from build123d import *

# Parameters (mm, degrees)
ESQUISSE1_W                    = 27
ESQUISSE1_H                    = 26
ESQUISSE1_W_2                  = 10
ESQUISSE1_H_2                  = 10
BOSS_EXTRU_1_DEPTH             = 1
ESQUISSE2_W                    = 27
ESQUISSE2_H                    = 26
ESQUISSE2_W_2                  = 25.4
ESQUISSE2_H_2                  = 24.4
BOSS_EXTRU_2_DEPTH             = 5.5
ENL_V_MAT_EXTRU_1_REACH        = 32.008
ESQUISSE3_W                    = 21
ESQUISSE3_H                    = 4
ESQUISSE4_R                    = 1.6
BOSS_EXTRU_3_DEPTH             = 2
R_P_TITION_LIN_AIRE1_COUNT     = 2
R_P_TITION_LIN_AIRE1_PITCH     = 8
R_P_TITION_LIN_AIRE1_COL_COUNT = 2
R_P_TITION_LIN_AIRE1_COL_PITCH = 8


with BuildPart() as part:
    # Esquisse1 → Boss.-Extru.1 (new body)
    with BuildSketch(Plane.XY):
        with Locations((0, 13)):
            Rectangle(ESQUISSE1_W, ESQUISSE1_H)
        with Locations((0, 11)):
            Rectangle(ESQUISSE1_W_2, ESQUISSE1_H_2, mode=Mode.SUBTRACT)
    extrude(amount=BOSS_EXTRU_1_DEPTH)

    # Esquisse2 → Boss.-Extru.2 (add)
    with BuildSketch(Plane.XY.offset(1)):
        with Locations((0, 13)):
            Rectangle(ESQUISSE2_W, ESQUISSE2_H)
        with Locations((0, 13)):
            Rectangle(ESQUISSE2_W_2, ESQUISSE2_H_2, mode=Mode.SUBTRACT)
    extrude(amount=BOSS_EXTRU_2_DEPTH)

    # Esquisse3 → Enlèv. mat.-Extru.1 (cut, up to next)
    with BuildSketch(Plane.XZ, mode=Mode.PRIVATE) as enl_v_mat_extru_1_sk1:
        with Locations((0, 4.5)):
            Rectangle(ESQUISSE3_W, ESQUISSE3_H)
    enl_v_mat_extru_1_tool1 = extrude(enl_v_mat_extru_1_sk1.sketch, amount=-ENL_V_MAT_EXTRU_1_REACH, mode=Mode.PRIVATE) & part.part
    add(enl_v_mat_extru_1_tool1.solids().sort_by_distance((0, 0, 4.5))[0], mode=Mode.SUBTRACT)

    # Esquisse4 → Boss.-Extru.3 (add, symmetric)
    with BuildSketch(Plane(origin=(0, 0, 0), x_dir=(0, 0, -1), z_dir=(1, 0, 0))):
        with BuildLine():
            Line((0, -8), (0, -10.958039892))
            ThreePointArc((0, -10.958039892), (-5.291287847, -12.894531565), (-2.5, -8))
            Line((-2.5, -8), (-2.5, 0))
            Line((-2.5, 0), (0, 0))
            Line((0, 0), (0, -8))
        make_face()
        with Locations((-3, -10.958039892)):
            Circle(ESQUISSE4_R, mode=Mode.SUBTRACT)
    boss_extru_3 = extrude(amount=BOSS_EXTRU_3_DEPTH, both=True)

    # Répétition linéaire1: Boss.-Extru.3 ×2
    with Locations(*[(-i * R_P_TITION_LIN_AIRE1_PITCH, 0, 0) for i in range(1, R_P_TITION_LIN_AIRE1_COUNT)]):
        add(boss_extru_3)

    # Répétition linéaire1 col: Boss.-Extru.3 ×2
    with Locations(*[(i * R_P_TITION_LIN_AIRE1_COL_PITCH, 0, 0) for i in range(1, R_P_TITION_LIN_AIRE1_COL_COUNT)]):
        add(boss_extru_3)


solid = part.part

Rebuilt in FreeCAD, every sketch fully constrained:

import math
import FreeCAD as App
import Part
import Sketcher
Q = App.Units.Quantity


def add_polygon(sketch, points):
    """Adds a closed chain of lines whose ends are joined by coincident constraints."""
    first, n = sketch.GeometryCount, len(points)
    for a, b in zip(points, points[1:] + points[:1]):
        sketch.addGeometry(Part.LineSegment(App.Vector(*a, 0), App.Vector(*b, 0)), False)
    for i in range(n):
        sketch.addConstraint(Sketcher.Constraint("Coincident", first + i, 2, first + (i + 1) % n, 1))

doc = App.newDocument("Part")
body = doc.addObject("PartDesign::Body", "Body")

# Sketch on XY plane
sketch1 = doc.addObject("Sketcher::SketchObject", "Sketch")
body.addObject(sketch1)
sketch1.AttachmentSupport = (doc.XY_Plane, [""])
sketch1.MapMode = "FlatFace"
add_polygon(sketch1, [(-13.5, 26), (-13.5, 0), (13.5, 0), (13.5, 26)])  # lines 0-3
add_polygon(sketch1, [(5, 6), (-5, 6), (-5, 16), (5, 16)])  # lines 4-7
sketch1.addConstraint([
    Sketcher.Constraint("Vertical", 0),
    Sketcher.Constraint("Horizontal", 1),
    Sketcher.Constraint("Vertical", 2),
    Sketcher.Constraint("Horizontal", 3),
    Sketcher.Constraint("Horizontal", 4),
    Sketcher.Constraint("Vertical", 5),
    Sketcher.Constraint("Horizontal", 6),
    Sketcher.Constraint("Vertical", 7),
    Sketcher.Constraint("Symmetric", 0, 2, 1, 2, -1, 1),
    Sketcher.Constraint("Equal", 6, 5),
    Sketcher.Constraint("DistanceX", 1, 1, 1, 2, Q("27 mm")),
    Sketcher.Constraint("DistanceX", 4, 2, 4, 1, Q("10 mm")),
    Sketcher.Constraint("DistanceY", 0, 2, 0, 1, Q("26 mm")),
    Sketcher.Constraint("DistanceX", 4, 2, -1, 1, Q("5 mm")),
    Sketcher.Constraint("DistanceY", -1, 1, 4, 2, Q("6 mm")),
])
pad1 = doc.addObject("PartDesign::Pad", "Pad")
body.addObject(pad1)
pad1.Profile = sketch1
pad1.Length = 1

# Sketch on XY plane
sketch2 = doc.addObject("Sketcher::SketchObject", "Sketch001")
body.addObject(sketch2)
sketch2.AttachmentSupport = (doc.XY_Plane, [""])
sketch2.MapMode = "FlatFace"
sketch2.AttachmentOffset = App.Placement(App.Vector(0, 0, 1), App.Rotation())
add_polygon(sketch2, [(-13.5, 26), (-13.5, 0), (13.5, 0), (13.5, 26)])  # lines 0-3
add_polygon(sketch2, [(12.7, 0.8), (-12.7, 0.8), (-12.7, 25.2), (12.7, 25.2)])  # lines 4-7
sketch2.addConstraint([
    Sketcher.Constraint("Vertical", 0),
    Sketcher.Constraint("Horizontal", 1),
    Sketcher.Constraint("Vertical", 2),
    Sketcher.Constraint("Horizontal", 3),
    Sketcher.Constraint("Horizontal", 4),
    Sketcher.Constraint("Vertical", 5),
    Sketcher.Constraint("Horizontal", 6),
    Sketcher.Constraint("Vertical", 7),
    Sketcher.Constraint("Symmetric", 0, 2, 1, 2, -1, 1),
    Sketcher.Constraint("DistanceX", 1, 1, 1, 2, Q("27 mm")),
    Sketcher.Constraint("DistanceY", 0, 2, 0, 1, Q("26 mm")),
    Sketcher.Constraint("DistanceX", 4, 2, 4, 1, Q("25.4 mm")),
    Sketcher.Constraint("DistanceY", 5, 1, 5, 2, Q("24.4 mm")),
    Sketcher.Constraint("DistanceX", 4, 2, -1, 1, Q("12.7 mm")),
    Sketcher.Constraint("DistanceY", -1, 1, 4, 2, Q("0.8 mm")),
])
pad2 = doc.addObject("PartDesign::Pad", "Pad001")
body.addObject(pad2)
pad2.Profile = sketch2
pad2.Length = 5.5

# Sketch on XZ plane
sketch3 = doc.addObject("Sketcher::SketchObject", "Sketch002")
body.addObject(sketch3)
sketch3.AttachmentSupport = (doc.XZ_Plane, [""])
sketch3.MapMode = "FlatFace"
add_polygon(sketch3, [(-10.5, 6.5), (-10.5, 2.5), (10.5, 2.5), (10.5, 6.5)])  # lines 0-3
sketch3.addConstraint([
    Sketcher.Constraint("Vertical", 0),
    Sketcher.Constraint("Horizontal", 1),
    Sketcher.Constraint("Vertical", 2),
    Sketcher.Constraint("Horizontal", 3),
    Sketcher.Constraint("DistanceX", 1, 1, 1, 2, Q("21 mm")),
    Sketcher.Constraint("DistanceY", 0, 2, 0, 1, Q("4 mm")),
    Sketcher.Constraint("DistanceX", 0, 2, -1, 1, Q("10.5 mm")),
    Sketcher.Constraint("DistanceY", -1, 1, 0, 2, Q("2.5 mm")),
])
pocket1 = doc.addObject("PartDesign::Pocket", "Pocket")
body.addObject(pocket1)
pocket1.Profile = sketch3
pocket1.Type = "UpToFirst"

# Sketch on YZ plane
sketch4 = doc.addObject("Sketcher::SketchObject", "Sketch003")
body.addObject(sketch4)
sketch4.AttachmentSupport = (doc.YZ_Plane, [""])
sketch4.MapMode = "FlatFace"
sketch4.addGeometry([
    Part.ArcOfCircle(Part.Circle(App.Vector(-10.95804, 3, 0), App.Vector(0, 0, 1), 3), math.radians(-9.594068), math.radians(270)),  # 0
    Part.LineSegment(App.Vector(-10.95804, 0, 0), App.Vector(0, 0, 0)),  # 1
    Part.LineSegment(App.Vector(0, 0, 0), App.Vector(0, 2.5, 0)),  # 2
    Part.LineSegment(App.Vector(0, 2.5, 0), App.Vector(-8, 2.5, 0)),  # 3
    Part.Circle(App.Vector(-10.95804, 3, 0), App.Vector(0, 0, 1), 1.6),  # 4
], False)
sketch4.addConstraint([
    Sketcher.Constraint("Tangent", 0, 2, 1, 1),
    Sketcher.Constraint("Coincident", 1, 2, 2, 1),
    Sketcher.Constraint("Coincident", 2, 2, 3, 1),
    Sketcher.Constraint("Coincident", 3, 2, 0, 1),
    Sketcher.Constraint("Horizontal", 1),
    Sketcher.Constraint("Vertical", 2),
    Sketcher.Constraint("Horizontal", 3),
    Sketcher.Constraint("Coincident", 1, 2, -1, 1),
    Sketcher.Constraint("Coincident", 4, 3, 0, 3),
    Sketcher.Constraint("Radius", 0, Q("3 mm")),
    Sketcher.Constraint("Diameter", 4, Q("3.2 mm")),
    Sketcher.Constraint("DistanceX", 3, 2, 3, 1, Q("8 mm")),
    Sketcher.Constraint("DistanceY", 2, 1, 2, 2, Q("2.5 mm")),
])
pad3 = doc.addObject("PartDesign::Pad", "Pad002")
body.addObject(pad3)
pad3.Profile = sketch4
pad3.Length = 4
pad3.Midplane = True
doc.recompute()

linearpattern = doc.addObject("PartDesign::LinearPattern", "LinearPattern")
body.addObject(linearpattern)
linearpattern.Originals = [pad3]
linearpattern.Direction = (doc.X_Axis, [""])
linearpattern.Mode = "offset"
linearpattern.Offset = 8
linearpattern.Occurrences = 2
linearpattern.Reversed = True
body.Tip = linearpattern
doc.recompute()

linearpattern2 = doc.addObject("PartDesign::LinearPattern", "LinearPattern001")
body.addObject(linearpattern2)
linearpattern2.Originals = [pad3]
linearpattern2.Direction = (doc.X_Axis, [""])
linearpattern2.Mode = "offset"
linearpattern2.Offset = 8
linearpattern2.Occurrences = 2
body.Tip = linearpattern2

doc.recompute()
